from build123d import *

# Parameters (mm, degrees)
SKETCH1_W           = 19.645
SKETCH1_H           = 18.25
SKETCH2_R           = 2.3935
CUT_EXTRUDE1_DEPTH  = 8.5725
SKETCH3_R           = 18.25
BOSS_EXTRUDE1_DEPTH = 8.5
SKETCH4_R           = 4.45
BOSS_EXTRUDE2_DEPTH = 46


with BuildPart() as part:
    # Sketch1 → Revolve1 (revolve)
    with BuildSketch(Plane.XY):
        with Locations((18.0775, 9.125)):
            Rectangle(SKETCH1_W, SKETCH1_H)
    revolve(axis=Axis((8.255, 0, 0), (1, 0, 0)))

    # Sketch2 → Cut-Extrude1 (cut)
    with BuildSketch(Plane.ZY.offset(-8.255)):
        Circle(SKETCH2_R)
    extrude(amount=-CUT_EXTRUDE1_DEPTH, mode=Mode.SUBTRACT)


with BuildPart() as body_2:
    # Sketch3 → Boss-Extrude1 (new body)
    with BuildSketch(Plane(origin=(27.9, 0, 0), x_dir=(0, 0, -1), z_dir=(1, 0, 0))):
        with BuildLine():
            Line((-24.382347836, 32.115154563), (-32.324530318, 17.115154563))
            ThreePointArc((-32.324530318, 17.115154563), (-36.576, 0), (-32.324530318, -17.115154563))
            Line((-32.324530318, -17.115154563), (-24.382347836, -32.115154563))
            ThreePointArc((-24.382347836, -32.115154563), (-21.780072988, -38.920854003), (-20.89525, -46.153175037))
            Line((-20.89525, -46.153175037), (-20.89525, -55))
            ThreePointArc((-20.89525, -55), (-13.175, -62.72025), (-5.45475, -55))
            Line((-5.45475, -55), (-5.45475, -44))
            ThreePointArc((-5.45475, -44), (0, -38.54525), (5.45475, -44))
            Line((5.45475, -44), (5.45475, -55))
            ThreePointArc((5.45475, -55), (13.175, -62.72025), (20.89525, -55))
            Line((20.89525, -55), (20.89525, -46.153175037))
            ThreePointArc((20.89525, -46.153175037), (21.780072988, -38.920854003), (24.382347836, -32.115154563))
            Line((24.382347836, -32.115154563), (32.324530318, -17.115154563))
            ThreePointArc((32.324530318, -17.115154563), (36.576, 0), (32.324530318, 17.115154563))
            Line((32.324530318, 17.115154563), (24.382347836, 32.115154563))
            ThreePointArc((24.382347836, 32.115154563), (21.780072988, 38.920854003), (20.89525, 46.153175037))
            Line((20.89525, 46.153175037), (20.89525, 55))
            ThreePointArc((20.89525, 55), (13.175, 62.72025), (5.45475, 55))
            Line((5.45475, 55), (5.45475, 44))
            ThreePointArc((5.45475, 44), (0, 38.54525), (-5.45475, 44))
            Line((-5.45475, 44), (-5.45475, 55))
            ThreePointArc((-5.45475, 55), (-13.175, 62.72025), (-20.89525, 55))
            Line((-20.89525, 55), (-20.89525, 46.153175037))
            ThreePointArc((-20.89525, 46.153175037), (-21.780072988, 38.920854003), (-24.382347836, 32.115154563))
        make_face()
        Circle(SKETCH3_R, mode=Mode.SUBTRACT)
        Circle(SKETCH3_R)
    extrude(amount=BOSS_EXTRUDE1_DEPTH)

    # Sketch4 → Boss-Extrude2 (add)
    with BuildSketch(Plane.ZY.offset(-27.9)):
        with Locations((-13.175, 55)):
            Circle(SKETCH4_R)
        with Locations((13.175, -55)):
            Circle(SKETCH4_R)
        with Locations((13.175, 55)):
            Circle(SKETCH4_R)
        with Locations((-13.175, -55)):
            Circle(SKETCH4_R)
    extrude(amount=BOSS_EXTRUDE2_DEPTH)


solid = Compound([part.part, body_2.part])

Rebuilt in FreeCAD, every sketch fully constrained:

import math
import FreeCAD as App
import Part
import Sketcher

V = App.Vector
Q = App.Units.Quantity

doc = App.newDocument("Part")
params = doc.addObject("Spreadsheet::Sheet", "Params")
for row, (alias, value) in enumerate([
    ("sketch1_height", "18.25 mm"),
    ("revolution_angle", "360 deg"),
    ("pocket1_length", "8.5725 mm"),
    ("sketch3_radius", "30 mm"),
    ("sketch3_width", "11 mm"),
    ("pad1_length", "8.5 mm"),
    ("sketch4_diameter", "8.9 mm"),
    ("pad2_length", "46 mm"),
], start=1):
    params.set(f"A{row}", alias)
    params.set(f"B{row}", "=" + value)
    params.setAlias(f"B{row}", alias)

body = doc.addObject("PartDesign::Body", "Body")

sketch1 = body.newObject("Sketcher::SketchObject", "Sketch")
sketch1.AttachmentSupport = (doc.getObject("XY_Plane"), [""])
sketch1.MapMode = "FlatFace"
sketch1.addGeometry(Part.LineSegment(V(8.255, 18.25, 0), V(8.255, 0, 0)), False)
sketch1.addGeometry(Part.LineSegment(V(8.255, 0, 0), V(27.9, 0, 0)), False)
sketch1.addGeometry(Part.LineSegment(V(27.9, 0, 0), V(27.9, 18.25, 0)), False)
sketch1.addGeometry(Part.LineSegment(V(27.9, 18.25, 0), V(8.255, 18.25, 0)), False)
sketch1.addConstraint(Sketcher.Constraint("Coincident", 0, 2, 1, 1))
sketch1.addConstraint(Sketcher.Constraint("Coincident", 1, 2, 2, 1))
sketch1.addConstraint(Sketcher.Constraint("Coincident", 2, 2, 3, 1))
sketch1.addConstraint(Sketcher.Constraint("Coincident", 3, 2, 0, 1))
sketch1.addConstraint(Sketcher.Constraint("Vertical", 0))
sketch1.addConstraint(Sketcher.Constraint("Horizontal", 1))
sketch1.addConstraint(Sketcher.Constraint("Vertical", 2))
sketch1.addConstraint(Sketcher.Constraint("Horizontal", 3))
sketch1.addConstraint(Sketcher.Constraint("PointOnObject", 0, 2, -1))
sketch1.addConstraint(Sketcher.Constraint("DistanceY", 0, 2, 0, 1, Q("18.25 mm")))
sketch1.addConstraint(Sketcher.Constraint("DistanceX", -1, 1, 1, 2, Q("27.9 mm")))
sketch1.addConstraint(Sketcher.Constraint("DistanceX", 1, 1, 1, 2, Q("19.645 mm")))
sketch1.setExpression("Constraints[9]", "Params.sketch1_height")
revolution = body.newObject("PartDesign::Revolution", "Revolution")
revolution.Profile = sketch1
revolution.ReferenceAxis = (sketch1, ["H_Axis"])
revolution.setExpression("Angle", "Params.revolution_angle")

sketch2 = body.newObject("Sketcher::SketchObject", "Sketch001")
sketch2.AttachmentSupport = (doc.getObject("YZ_Plane"), [""])
sketch2.MapMode = "FlatFace"
sketch2.AttachmentOffset = App.Placement(V(0, 0, 8.255), App.Rotation())
sketch2.addGeometry(Part.Circle(V(0, 0, 0), V(0, 0, 1), 2.3935), False)
sketch2.addConstraint(Sketcher.Constraint("Coincident", 0, 3, -1, 1))
sketch2.addConstraint(Sketcher.Constraint("Diameter", 0, Q("4.787 mm")))
pocket1 = body.newObject("PartDesign::Pocket", "Pocket")
pocket1.Profile = sketch2
pocket1.setExpression("Length", "Params.pocket1_length")
pocket1.Reversed = True
body2 = doc.addObject("PartDesign::Body", "Body001")

sketch3 = body2.newObject("Sketcher::SketchObject", "Sketch002")
sketch3.AttachmentSupport = (doc.getObject("YZ_Plane001"), [""])
sketch3.MapMode = "FlatFace"
sketch3.AttachmentOffset = App.Placement(V(0, 0, 27.9), App.Rotation())
sketch3.addGeometry(Part.LineSegment(V(32.115155, 24.382348, 0), V(17.115155, 32.32453, 0)), False)
sketch3.addGeometry(Part.ArcOfCircle(Part.Circle(V(0, 0, 0), V(0, 0, 1), 36.576), math.radians(62.099728), math.radians(117.900272)), False)
sketch3.addGeometry(Part.LineSegment(V(-17.115155, 32.32453, 0), V(-32.115155, 24.382348, 0)), False)
sketch3.addGeometry(Part.ArcOfCircle(Part.Circle(V(-46.153175, 50.89525, 0), V(0, 0, 1), 30), math.radians(-90), math.radians(-62.099728)), False)
sketch3.addGeometry(Part.LineSegment(V(-46.153175, 20.89525, 0), V(-55, 20.89525, 0)), False)
sketch3.addGeometry(Part.ArcOfCircle(Part.Circle(V(-55, 13.175, 0), V(0, 0, 1), 7.72025), math.radians(90), math.radians(270)), False)
sketch3.addGeometry(Part.LineSegment(V(-55, 5.45475, 0), V(-44, 5.45475, 0)), False)
sketch3.addGeometry(Part.ArcOfCircle(Part.Circle(V(-44, 0, 0), V(0, 0, 1), 5.45475), math.radians(-90), math.radians(90)), False)
sketch3.addGeometry(Part.LineSegment(V(-44, -5.45475, 0), V(-55, -5.45475, 0)), False)
sketch3.addGeometry(Part.ArcOfCircle(Part.Circle(V(-55, -13.175, 0), V(0, 0, 1), 7.72025), math.radians(90), math.radians(270)), False)
sketch3.addGeometry(Part.LineSegment(V(-55, -20.89525, 0), V(-46.153175, -20.89525, 0)), False)
sketch3.addGeometry(Part.ArcOfCircle(Part.Circle(V(-46.153175, -50.89525, 0), V(0, 0, 1), 30), math.radians(62.099728), math.radians(90)), False)
sketch3.addGeometry(Part.LineSegment(V(-32.115155, -24.382348, 0), V(-17.115155, -32.32453, 0)), False)
sketch3.addGeometry(Part.ArcOfCircle(Part.Circle(V(0, 0, 0), V(0, 0, 1), 36.576), math.radians(-117.900272), math.radians(-62.099728)), False)
sketch3.addGeometry(Part.LineSegment(V(17.115155, -32.32453, 0), V(32.115155, -24.382348, 0)), False)
sketch3.addGeometry(Part.ArcOfCircle(Part.Circle(V(46.153175, -50.89525, 0), V(0, 0, 1), 30), math.radians(90), math.radians(117.900272)), False)
sketch3.addGeometry(Part.LineSegment(V(46.153175, -20.89525, 0), V(55, -20.89525, 0)), False)
sketch3.addGeometry(Part.ArcOfCircle(Part.Circle(V(55, -13.175, 0), V(0, 0, 1), 7.72025), math.radians(-90), math.radians(90)), False)
sketch3.addGeometry(Part.LineSegment(V(55, -5.45475, 0), V(44, -5.45475, 0)), False)
sketch3.addGeometry(Part.ArcOfCircle(Part.Circle(V(44, 0, 0), V(0, 0, 1), 5.45475), math.radians(90), math.radians(270)), False)
sketch3.addGeometry(Part.LineSegment(V(44, 5.45475, 0), V(55, 5.45475, 0)), False)
sketch3.addGeometry(Part.ArcOfCircle(Part.Circle(V(55, 13.175, 0), V(0, 0, 1), 7.72025), math.radians(-90), math.radians(90)), False)
sketch3.addGeometry(Part.LineSegment(V(55, 20.89525, 0), V(46.153175, 20.89525, 0)), False)
sketch3.addGeometry(Part.ArcOfCircle(Part.Circle(V(46.153175, 50.89525, 0), V(0, 0, 1), 30), math.radians(-117.900272), math.radians(-90)), False)
sketch3.addConstraint(Sketcher.Constraint("Tangent", 0, 2, 1, 1))
sketch3.addConstraint(Sketcher.Constraint("Tangent", 1, 2, 2, 1))
sketch3.addConstraint(Sketcher.Constraint("Tangent", 2, 2, 3, 2))
sketch3.addConstraint(Sketcher.Constraint("Tangent", 3, 1, 4, 1))
sketch3.addConstraint(Sketcher.Constraint("Tangent", 4, 2, 5, 1))
sketch3.addConstraint(Sketcher.Constraint("Tangent", 5, 2, 6, 1))
sketch3.addConstraint(Sketcher.Constraint("Tangent", 6, 2, 7, 2))
sketch3.addConstraint(Sketcher.Constraint("Tangent", 7, 1, 8, 1))
sketch3.addConstraint(Sketcher.Constraint("Tangent", 8, 2, 9, 1))
sketch3.addConstraint(Sketcher.Constraint("Tangent", 9, 2, 10, 1))
sketch3.addConstraint(Sketcher.Constraint("Tangent", 10, 2, 11, 2))
sketch3.addConstraint(Sketcher.Constraint("Tangent", 11, 1, 12, 1))
sketch3.addConstraint(Sketcher.Constraint("Tangent", 12, 2, 13, 1))
sketch3.addConstraint(Sketcher.Constraint("Tangent", 13, 2, 14, 1))
sketch3.addConstraint(Sketcher.Constraint("Tangent", 14, 2, 15, 2))
sketch3.addConstraint(Sketcher.Constraint("Tangent", 15, 1, 16, 1))
sketch3.addConstraint(Sketcher.Constraint("Tangent", 16, 2, 17, 1))
sketch3.addConstraint(Sketcher.Constraint("Tangent", 17, 2, 18, 1))
sketch3.addConstraint(Sketcher.Constraint("Tangent", 18, 2, 19, 2))
sketch3.addConstraint(Sketcher.Constraint("Tangent", 19, 1, 20, 1))
sketch3.addConstraint(Sketcher.Constraint("Tangent", 20, 2, 21, 1))
sketch3.addConstraint(Sketcher.Constraint("Tangent", 21, 2, 22, 1))
sketch3.addConstraint(Sketcher.Constraint("Tangent", 22, 2, 23, 2))
sketch3.addConstraint(Sketcher.Constraint("Tangent", 23, 1, 0, 1))
sketch3.addConstraint(Sketcher.Constraint("Horizontal", 4))
sketch3.addConstraint(Sketcher.Constraint("Horizontal", 6))
sketch3.addConstraint(Sketcher.Constraint("Horizontal", 8))
sketch3.addConstraint(Sketcher.Constraint("Horizontal", 10))
sketch3.addConstraint(Sketcher.Constraint("Horizontal", 16))
sketch3.addConstraint(Sketcher.Constraint("Horizontal", 18))
sketch3.addConstraint(Sketcher.Constraint("Horizontal", 20))
sketch3.addConstraint(Sketcher.Constraint("Horizontal", 22))
sketch3.addConstraint(Sketcher.Constraint("Coincident", 1, 3, -1, 1))
sketch3.addConstraint(Sketcher.Constraint("Coincident", 13, 3, -1, 1))
sketch3.addConstraint(Sketcher.Constraint("Equal", 5, 9))
sketch3.addConstraint(Sketcher.Constraint("Equal", 3, 11))
sketch3.addConstraint(Sketcher.Constraint("Equal", 1, 13))
sketch3.addConstraint(Sketcher.Constraint("Equal", 11, 15))
sketch3.addConstraint(Sketcher.Constraint("Equal", 9, 17))
sketch3.addConstraint(Sketcher.Constraint("Equal", 7, 19))
sketch3.addConstraint(Sketcher.Constraint("Equal", 17, 21))
sketch3.addConstraint(Sketcher.Constraint("Equal", 15, 23))
sketch3.addConstraint(Sketcher.Constraint("Symmetric", 3, 3, 15, 3, -1, 1))
sketch3.addConstraint(Sketcher.Constraint("Symmetric", 11, 3, 15, 3, -2))
sketch3.addConstraint(Sketcher.Constraint("Parallel", 0, 12))
sketch3.addConstraint(Sketcher.Constraint("Vertical", 5, 3, 9, 3))
sketch3.addConstraint(Sketcher.Constraint("Vertical", 17, 3, 21, 3))
sketch3.addConstraint(Sketcher.Constraint("Equal", 10, 16))
sketch3.addConstraint(Sketcher.Constraint("Equal", 8, 18))
sketch3.addConstraint(Sketcher.Constraint("Radius", 3, Q("30 mm")))
sketch3.addConstraint(Sketcher.Constraint("DistanceX", 6, 1, 6, 2, Q("11 mm")))
sketch3.addConstraint(Sketcher.Constraint("DistanceX", 5, 3, -1, 1, Q("55 mm")))
sketch3.addConstraint(Sketcher.Constraint("Radius", 1, Q("36.576 mm")))
sketch3.addConstraint(Sketcher.Constraint("DistanceX", 2, 2, 1, 2, Q("15 mm")))
sketch3.addConstraint(Sketcher.Constraint("Radius", 5, Q("7.72025 mm")))
sketch3.addConstraint(Sketcher.Constraint("Radius", 7, Q("5.45475 mm")))
sketch3.setExpression("Constraints[49]", "Params.sketch3_radius")
sketch3.setExpression("Constraints[50]", "Params.sketch3_width")
pad1 = body2.newObject("PartDesign::Pad", "Pad")
pad1.Profile = sketch3
pad1.setExpression("Length", "Params.pad1_length")

sketch4 = body2.newObject("Sketcher::SketchObject", "Sketch003")
sketch4.AttachmentSupport = (doc.getObject("YZ_Plane001"), [""])
sketch4.MapMode = "FlatFace"
sketch4.AttachmentOffset = App.Placement(V(0, 0, 27.9), App.Rotation())
sketch4.addGeometry(Part.Circle(V(55, -13.175, 0), V(0, 0, 1), 4.45), False)
sketch4.addGeometry(Part.Circle(V(-55, 13.175, 0), V(0, 0, 1), 4.45), False)
sketch4.addGeometry(Part.Circle(V(55, 13.175, 0), V(0, 0, 1), 4.45), False)
sketch4.addGeometry(Part.Circle(V(-55, -13.175, 0), V(0, 0, 1), 4.45), False)
sketch4.addConstraint(Sketcher.Constraint("Equal", 0, 1))
sketch4.addConstraint(Sketcher.Constraint("Equal", 1, 2))
sketch4.addConstraint(Sketcher.Constraint("Equal", 2, 3))
sketch4.addConstraint(Sketcher.Constraint("Symmetric", 0, 3, 1, 3, -1, 1))
sketch4.addConstraint(Sketcher.Constraint("Symmetric", 2, 3, 3, 3, -1, 1))
sketch4.addConstraint(Sketcher.Constraint("Symmetric", 1, 3, 2, 3, -2))
sketch4.addConstraint(Sketcher.Constraint("Diameter", 0, Q("8.9 mm")))
sketch4.addConstraint(Sketcher.Constraint("DistanceX", -1, 1, 0, 3, Q("55 mm")))
sketch4.addConstraint(Sketcher.Constraint("DistanceY", 0, 3, 1, 3, Q("26.35 mm")))
sketch4.setExpression("Constraints[6]", "Params.sketch4_diameter")
pad2 = body2.newObject("PartDesign::Pad", "Pad001")
pad2.Profile = sketch4
pad2.setExpression("Length", "Params.pad2_length")
pad2.Reversed = True

doc.recompute()
